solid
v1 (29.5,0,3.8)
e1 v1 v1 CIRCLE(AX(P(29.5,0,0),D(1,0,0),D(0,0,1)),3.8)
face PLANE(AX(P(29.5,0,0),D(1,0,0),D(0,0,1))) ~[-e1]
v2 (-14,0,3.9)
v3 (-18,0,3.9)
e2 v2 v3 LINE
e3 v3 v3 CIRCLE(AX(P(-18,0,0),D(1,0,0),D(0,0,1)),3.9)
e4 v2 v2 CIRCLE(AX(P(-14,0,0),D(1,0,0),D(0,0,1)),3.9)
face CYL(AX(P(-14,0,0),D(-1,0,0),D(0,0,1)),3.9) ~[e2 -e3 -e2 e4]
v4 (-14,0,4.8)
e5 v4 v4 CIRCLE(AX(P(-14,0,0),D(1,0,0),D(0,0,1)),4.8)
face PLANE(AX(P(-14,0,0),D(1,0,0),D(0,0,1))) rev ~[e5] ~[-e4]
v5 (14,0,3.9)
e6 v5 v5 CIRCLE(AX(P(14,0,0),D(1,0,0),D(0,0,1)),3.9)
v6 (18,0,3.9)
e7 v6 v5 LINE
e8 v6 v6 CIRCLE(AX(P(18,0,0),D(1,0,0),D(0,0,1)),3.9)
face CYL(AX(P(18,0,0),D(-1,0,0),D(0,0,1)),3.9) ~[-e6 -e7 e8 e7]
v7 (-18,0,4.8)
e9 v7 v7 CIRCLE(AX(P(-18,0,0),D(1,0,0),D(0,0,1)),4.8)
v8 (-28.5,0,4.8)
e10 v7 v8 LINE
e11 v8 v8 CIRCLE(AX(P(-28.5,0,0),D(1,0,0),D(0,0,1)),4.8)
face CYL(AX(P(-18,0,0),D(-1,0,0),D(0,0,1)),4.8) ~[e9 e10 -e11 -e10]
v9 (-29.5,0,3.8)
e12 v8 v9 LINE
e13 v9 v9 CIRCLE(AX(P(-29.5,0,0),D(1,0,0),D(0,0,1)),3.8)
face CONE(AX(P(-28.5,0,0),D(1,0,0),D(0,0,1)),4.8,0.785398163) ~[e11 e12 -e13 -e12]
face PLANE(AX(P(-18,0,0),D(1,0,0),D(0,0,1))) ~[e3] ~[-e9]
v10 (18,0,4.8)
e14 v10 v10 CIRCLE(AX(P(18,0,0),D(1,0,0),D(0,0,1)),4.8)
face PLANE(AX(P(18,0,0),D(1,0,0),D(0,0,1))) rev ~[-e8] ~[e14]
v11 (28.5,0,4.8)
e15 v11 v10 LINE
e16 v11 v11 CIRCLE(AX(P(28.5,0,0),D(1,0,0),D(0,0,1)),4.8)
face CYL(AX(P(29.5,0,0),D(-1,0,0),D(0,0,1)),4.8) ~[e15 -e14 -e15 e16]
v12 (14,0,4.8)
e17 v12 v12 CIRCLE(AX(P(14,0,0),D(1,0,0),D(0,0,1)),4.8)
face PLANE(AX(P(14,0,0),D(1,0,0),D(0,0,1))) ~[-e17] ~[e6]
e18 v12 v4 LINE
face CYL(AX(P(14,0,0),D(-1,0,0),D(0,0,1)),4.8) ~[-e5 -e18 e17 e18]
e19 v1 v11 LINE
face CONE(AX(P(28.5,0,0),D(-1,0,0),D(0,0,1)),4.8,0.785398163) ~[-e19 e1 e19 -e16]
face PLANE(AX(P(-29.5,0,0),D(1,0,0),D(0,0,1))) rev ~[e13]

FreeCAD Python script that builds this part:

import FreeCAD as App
import Part
import Sketcher


def edges_at(feature, points):
    """Names of the edges that pass closest to the given points."""
    edges = feature.Shape.Edges
    near = lambda p: min(range(len(edges)), key=lambda i: edges[i].distToShape(Part.Vertex(*p))[0])
    return sorted({f"Edge{near(p) + 1}" for p in points})


def add_polygon(sketch, points):
    """Adds a closed chain of lines whose ends are joined by coincident constraints."""
    first, n = sketch.GeometryCount, len(points)
    for a, b in zip(points, points[1:] + points[:1]):
        sketch.addGeometry(Part.LineSegment(App.Vector(*a, 0), App.Vector(*b, 0)), False)
    for i in range(n):
        sketch.addConstraint(Sketcher.Constraint("Coincident", first + i, 2, first + (i + 1) % n, 1))

doc = App.newDocument("Part")
body = doc.addObject("PartDesign::Body", "Body")

# Sketch on XZ plane
sketch1 = body.newObject("Sketcher::SketchObject", "Sketch")
sketch1.AttachmentSupport = (doc.getObject("XZ_Plane"), [""])
sketch1.MapMode = "FlatFace"
add_polygon(sketch1, [(-18, 4.8), (-29.5, 4.8), (-29.5, 0), (29.5, 0), (29.5, 4.8), (18, 4.8), (18, 3.9), (14, 3.9), (14, 4.8), (-14, 4.8), (-14, 3.9), (-18, 3.9)])  # lines 0-11
sketch1.addConstraint(Sketcher.Constraint("Horizontal", 0))
sketch1.addConstraint(Sketcher.Constraint("Vertical", 1))
sketch1.addConstraint(Sketcher.Constraint("Horizontal", 2))
sketch1.addConstraint(Sketcher.Constraint("Vertical", 3))
sketch1.addConstraint(Sketcher.Constraint("Horizontal", 4))
sketch1.addConstraint(Sketcher.Constraint("Vertical", 5))
sketch1.addConstraint(Sketcher.Constraint("Horizontal", 6))
sketch1.addConstraint(Sketcher.Constraint("Vertical", 7))
sketch1.addConstraint(Sketcher.Constraint("Horizontal", 8))
sketch1.addConstraint(Sketcher.Constraint("Vertical", 9))
sketch1.addConstraint(Sketcher.Constraint("Horizontal", 10))
sketch1.addConstraint(Sketcher.Constraint("Vertical", 11))
sketch1.addConstraint(Sketcher.Constraint("Symmetric", 1, 2, 2, 2, -1, 1))
sketch1.addConstraint(Sketcher.Constraint("Symmetric", 6, 2, 9, 2, -2))
sketch1.addConstraint(Sketcher.Constraint("Symmetric", 4, 2, 11, 2, -2))
sketch1.addConstraint(Sketcher.Constraint("Horizontal", 4, 2, 7, 2))
sketch1.addConstraint(Sketcher.Constraint("DistanceX", 2, 1, 2, 2, 59.0))
sketch1.addConstraint(Sketcher.Constraint("DistanceX", 6, 2, 6, 1, 4.0))
sketch1.addConstraint(Sketcher.Constraint("DistanceX", 8, 2, 8, 1, 28.0))
sketch1.addConstraint(Sketcher.Constraint("DistanceY", 1, 2, 1, 1, 4.8))
sketch1.addConstraint(Sketcher.Constraint("DistanceY", 5, 2, 5, 1, 0.9))
revolution = body.newObject("PartDesign::Revolution", "Revolution")
revolution.Profile = sketch1
revolution.ReferenceAxis = (sketch1, ["H_Axis"])
revolution.Angle = 360
doc.recompute()

chamfer = body.newObject("PartDesign::Chamfer", "Chamfer")
chamfer.Base = (revolution, edges_at(revolution, [(-29.5, 0, -4.8), (29.5, 0, -4.8)]))
chamfer.Size = 1

doc.recompute()
